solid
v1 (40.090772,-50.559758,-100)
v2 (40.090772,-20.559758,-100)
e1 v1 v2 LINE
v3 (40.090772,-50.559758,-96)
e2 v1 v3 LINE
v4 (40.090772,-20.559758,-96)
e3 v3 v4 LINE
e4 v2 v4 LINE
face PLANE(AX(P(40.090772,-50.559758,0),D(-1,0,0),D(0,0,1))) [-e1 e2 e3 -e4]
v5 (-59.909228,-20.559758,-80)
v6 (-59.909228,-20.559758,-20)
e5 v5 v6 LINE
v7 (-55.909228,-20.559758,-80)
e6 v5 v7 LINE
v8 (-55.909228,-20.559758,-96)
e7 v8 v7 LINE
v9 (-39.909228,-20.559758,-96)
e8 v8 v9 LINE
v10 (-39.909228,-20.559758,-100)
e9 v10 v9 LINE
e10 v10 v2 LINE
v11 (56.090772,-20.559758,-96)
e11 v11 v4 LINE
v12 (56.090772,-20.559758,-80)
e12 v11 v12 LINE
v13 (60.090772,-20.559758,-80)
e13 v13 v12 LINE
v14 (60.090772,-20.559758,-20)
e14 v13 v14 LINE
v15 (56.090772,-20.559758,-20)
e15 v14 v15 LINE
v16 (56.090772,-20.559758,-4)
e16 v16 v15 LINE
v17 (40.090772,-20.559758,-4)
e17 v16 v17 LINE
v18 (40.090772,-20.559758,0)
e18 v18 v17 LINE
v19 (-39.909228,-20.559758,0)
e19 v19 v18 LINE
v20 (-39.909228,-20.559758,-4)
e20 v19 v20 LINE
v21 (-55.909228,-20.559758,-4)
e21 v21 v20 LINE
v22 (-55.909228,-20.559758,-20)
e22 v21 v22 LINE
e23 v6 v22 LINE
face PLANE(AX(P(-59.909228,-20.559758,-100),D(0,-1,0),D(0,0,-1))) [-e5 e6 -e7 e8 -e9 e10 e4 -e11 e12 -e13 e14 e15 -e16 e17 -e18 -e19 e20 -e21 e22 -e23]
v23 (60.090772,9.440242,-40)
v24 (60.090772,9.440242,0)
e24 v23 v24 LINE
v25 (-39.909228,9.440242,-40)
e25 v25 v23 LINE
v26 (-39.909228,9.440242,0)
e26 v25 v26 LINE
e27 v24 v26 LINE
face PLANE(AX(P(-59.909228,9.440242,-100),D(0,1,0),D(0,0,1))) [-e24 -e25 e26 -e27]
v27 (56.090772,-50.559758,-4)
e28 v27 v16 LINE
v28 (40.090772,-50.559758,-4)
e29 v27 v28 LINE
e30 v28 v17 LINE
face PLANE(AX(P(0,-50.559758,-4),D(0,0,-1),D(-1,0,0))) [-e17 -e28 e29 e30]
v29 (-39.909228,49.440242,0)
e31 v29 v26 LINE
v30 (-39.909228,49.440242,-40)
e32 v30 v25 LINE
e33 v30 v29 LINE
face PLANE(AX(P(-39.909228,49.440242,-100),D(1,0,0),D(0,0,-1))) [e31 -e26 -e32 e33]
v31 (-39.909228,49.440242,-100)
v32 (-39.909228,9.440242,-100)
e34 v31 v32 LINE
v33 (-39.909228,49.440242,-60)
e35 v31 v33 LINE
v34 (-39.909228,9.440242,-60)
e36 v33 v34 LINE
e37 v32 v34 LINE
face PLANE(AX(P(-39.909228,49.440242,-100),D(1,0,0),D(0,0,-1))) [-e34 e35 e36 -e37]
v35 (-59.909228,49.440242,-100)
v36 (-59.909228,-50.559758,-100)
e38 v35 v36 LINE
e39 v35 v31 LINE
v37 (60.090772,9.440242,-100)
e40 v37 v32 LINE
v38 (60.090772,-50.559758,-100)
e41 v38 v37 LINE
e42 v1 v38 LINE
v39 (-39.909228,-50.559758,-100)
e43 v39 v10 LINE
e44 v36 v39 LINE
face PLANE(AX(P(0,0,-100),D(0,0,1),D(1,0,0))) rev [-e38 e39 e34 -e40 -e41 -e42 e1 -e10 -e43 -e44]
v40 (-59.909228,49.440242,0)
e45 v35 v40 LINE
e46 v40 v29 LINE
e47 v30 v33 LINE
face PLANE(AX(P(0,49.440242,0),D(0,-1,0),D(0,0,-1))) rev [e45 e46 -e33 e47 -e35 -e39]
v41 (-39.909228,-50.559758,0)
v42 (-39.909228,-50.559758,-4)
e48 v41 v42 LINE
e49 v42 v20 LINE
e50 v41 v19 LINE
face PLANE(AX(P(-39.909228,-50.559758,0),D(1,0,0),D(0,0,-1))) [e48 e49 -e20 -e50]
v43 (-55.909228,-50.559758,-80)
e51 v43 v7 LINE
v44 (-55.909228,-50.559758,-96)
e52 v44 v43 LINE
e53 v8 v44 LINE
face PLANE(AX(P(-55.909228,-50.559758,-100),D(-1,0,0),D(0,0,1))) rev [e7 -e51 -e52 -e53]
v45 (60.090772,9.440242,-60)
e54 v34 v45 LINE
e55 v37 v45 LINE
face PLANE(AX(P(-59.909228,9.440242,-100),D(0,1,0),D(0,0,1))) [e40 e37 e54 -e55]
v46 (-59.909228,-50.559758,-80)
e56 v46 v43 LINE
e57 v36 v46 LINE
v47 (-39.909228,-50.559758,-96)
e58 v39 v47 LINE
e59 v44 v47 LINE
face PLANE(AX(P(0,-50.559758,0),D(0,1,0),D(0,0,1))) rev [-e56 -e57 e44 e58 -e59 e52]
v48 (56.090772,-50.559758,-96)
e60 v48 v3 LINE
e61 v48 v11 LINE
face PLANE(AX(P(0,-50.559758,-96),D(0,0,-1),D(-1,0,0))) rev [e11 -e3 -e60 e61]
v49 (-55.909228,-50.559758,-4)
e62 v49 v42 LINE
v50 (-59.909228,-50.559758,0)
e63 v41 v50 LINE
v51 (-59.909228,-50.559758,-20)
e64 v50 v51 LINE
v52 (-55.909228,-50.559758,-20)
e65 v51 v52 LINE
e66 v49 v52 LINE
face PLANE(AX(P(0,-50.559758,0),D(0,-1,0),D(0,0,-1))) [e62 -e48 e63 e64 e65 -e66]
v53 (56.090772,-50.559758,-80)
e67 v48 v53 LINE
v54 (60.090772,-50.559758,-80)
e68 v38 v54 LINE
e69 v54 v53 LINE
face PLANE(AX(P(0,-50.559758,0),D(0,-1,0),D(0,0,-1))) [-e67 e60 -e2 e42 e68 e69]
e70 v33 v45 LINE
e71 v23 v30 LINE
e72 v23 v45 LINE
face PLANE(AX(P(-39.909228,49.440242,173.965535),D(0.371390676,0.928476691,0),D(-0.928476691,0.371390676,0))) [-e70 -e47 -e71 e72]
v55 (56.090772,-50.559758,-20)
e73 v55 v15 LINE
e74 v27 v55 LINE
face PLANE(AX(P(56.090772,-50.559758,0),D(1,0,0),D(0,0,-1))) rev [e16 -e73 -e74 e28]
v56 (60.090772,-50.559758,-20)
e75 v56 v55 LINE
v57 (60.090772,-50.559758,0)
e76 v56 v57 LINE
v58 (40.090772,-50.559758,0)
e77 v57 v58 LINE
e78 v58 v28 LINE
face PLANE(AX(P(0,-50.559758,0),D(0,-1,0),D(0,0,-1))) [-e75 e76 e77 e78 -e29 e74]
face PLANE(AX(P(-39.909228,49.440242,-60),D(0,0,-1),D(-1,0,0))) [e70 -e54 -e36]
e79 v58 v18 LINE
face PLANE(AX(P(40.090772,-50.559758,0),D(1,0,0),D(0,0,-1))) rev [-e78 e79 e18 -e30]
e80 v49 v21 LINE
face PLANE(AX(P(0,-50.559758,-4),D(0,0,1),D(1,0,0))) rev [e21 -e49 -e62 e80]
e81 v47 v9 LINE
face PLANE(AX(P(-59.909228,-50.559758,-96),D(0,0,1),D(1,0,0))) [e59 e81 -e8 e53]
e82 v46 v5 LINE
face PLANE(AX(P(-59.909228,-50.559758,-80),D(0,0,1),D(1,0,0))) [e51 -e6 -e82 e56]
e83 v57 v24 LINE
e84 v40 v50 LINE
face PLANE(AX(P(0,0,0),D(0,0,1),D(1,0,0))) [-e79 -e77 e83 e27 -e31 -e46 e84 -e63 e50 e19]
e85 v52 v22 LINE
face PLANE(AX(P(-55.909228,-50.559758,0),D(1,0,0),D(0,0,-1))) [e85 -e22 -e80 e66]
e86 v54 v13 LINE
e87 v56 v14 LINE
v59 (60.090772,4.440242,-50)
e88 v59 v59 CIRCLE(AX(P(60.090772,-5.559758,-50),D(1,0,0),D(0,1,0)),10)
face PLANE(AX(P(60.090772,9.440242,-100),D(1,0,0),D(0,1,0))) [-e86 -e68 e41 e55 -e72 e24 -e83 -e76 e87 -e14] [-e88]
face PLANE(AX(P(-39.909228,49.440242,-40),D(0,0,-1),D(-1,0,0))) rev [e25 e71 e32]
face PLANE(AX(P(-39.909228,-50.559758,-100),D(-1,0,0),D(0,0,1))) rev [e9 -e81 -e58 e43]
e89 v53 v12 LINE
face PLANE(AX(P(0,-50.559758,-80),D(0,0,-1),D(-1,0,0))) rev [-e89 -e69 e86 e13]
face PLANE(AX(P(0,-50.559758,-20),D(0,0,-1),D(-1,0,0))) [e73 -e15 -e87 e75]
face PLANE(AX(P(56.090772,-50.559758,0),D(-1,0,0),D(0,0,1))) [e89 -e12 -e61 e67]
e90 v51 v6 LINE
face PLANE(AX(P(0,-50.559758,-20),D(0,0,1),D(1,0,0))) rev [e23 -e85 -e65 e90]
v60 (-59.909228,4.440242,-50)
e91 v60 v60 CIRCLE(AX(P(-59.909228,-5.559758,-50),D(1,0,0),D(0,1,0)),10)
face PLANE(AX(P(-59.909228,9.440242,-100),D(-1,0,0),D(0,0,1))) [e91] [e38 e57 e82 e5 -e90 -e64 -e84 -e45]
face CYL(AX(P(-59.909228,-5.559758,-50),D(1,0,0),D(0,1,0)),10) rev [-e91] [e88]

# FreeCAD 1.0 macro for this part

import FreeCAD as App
import Part
import Sketcher

V = App.Vector
Q = App.Units.Quantity

doc = App.newDocument("Part")
body = doc.addObject("PartDesign::Body", "Body")

# Sketch on XY plane
sketch1 = doc.addObject("Sketcher::SketchObject", "Sketch")
body.addObject(sketch1)
sketch1.AttachmentSupport = (doc.XY_Plane, [""])
sketch1.MapMode = "FlatFace"
sketch1.addGeometry([
    Part.LineSegment(V(-60, 9, 0), V(-60, -21, 0)),
    Part.LineSegment(V(-60, -21, 0), V(60, -21, 0)),
    Part.LineSegment(V(60, -21, 0), V(60, 9, 0)),
    Part.LineSegment(V(60, 9, 0), V(-60, 9, 0)),
], False)
sketch1.addConstraint([
    Sketcher.Constraint("Coincident", 0, 2, 1, 1),
    Sketcher.Constraint("Coincident", 1, 2, 2, 1),
    Sketcher.Constraint("Coincident", 2, 2, 3, 1),
    Sketcher.Constraint("Coincident", 3, 2, 0, 1),
    Sketcher.Constraint("Vertical", 0),
    Sketcher.Constraint("Horizontal", 1),
    Sketcher.Constraint("Vertical", 2),
    Sketcher.Constraint("Horizontal", 3),
    Sketcher.Constraint("DistanceX", 1, 1, 1, 2, Q("120 mm")),
    Sketcher.Constraint("DistanceY", 0, 2, 0, 1, Q("30 mm")),
    Sketcher.Constraint("DistanceX", 0, 2, -1, 1, Q("59.909228 mm")),
    Sketcher.Constraint("DistanceY", 0, 2, -1, 1, Q("20.559758 mm")),
])
pad1 = doc.addObject("PartDesign::Pad", "Pad")
body.addObject(pad1)
pad1.Profile = sketch1
pad1.Length = 100
pad1.Reversed = True

# Sketch on XZ plane
sketch2 = doc.addObject("Sketcher::SketchObject", "Sketch001")
body.addObject(sketch2)
sketch2.AttachmentSupport = (doc.XZ_Plane, [""])
sketch2.MapMode = "FlatFace"
sketch2.AttachmentOffset = App.Placement(V(0, 0, -9.440242), App.Rotation())
sketch2.addGeometry([
    Part.LineSegment(V(-60, -100, 0), V(-60, 0, 0)),
    Part.LineSegment(V(-60, 0, 0), V(-40, 0, 0)),
    Part.LineSegment(V(-40, 0, 0), V(-40, -100, 0)),
    Part.LineSegment(V(-40, -100, 0), V(-60, -100, 0)),
], False)
sketch2.addConstraint([
    Sketcher.Constraint("Coincident", 0, 2, 1, 1),
    Sketcher.Constraint("Coincident", 1, 2, 2, 1),
    Sketcher.Constraint("Coincident", 2, 2, 3, 1),
    Sketcher.Constraint("Coincident", 3, 2, 0, 1),
    Sketcher.Constraint("Vertical", 0),
    Sketcher.Constraint("Horizontal", 1),
    Sketcher.Constraint("Vertical", 2),
    Sketcher.Constraint("Horizontal", 3),
    Sketcher.Constraint("PointOnObject", 0, 2, -1),
    Sketcher.Constraint("DistanceX", 1, 1, 1, 2, Q("20 mm")),
    Sketcher.Constraint("DistanceY", 0, 1, 0, 2, Q("100 mm")),
    Sketcher.Constraint("DistanceX", 0, 2, -1, 1, Q("59.909228 mm")),
])
pad2 = doc.addObject("PartDesign::Pad", "Pad001")
body.addObject(pad2)
pad2.Profile = sketch2
pad2.Length = 40
pad2.Reversed = True

# Sketch on XZ plane
sketch3 = doc.addObject("Sketcher::SketchObject", "Sketch002")
body.addObject(sketch3)
sketch3.AttachmentSupport = (doc.XZ_Plane, [""])
sketch3.MapMode = "FlatFace"
sketch3.AttachmentOffset = App.Placement(V(0, 0, -9.440242), App.Rotation())
sketch3.addGeometry([
    Part.LineSegment(V(-40, -60, 0), V(-40, -40, 0)),
    Part.LineSegment(V(-40, -40, 0), V(60, -40, 0)),
    Part.LineSegment(V(60, -40, 0), V(60, -60, 0)),
    Part.LineSegment(V(60, -60, 0), V(-40, -60, 0)),
], False)
sketch3.addConstraint([
    Sketcher.Constraint("Coincident", 0, 2, 1, 1),
    Sketcher.Constraint("Coincident", 1, 2, 2, 1),
    Sketcher.Constraint("Coincident", 2, 2, 3, 1),
    Sketcher.Constraint("Coincident", 3, 2, 0, 1),
    Sketcher.Constraint("Vertical", 0),
    Sketcher.Constraint("Horizontal", 1),
    Sketcher.Constraint("Vertical", 2),
    Sketcher.Constraint("Horizontal", 3),
    Sketcher.Constraint("DistanceX", 1, 1, 1, 2, Q("100 mm")),
    Sketcher.Constraint("DistanceY", 0, 1, 0, 2, Q("20 mm")),
    Sketcher.Constraint("DistanceY", 0, 2, -1, 1, Q("40 mm")),
    Sketcher.Constraint("DistanceX", 0, 2, -1, 1, Q("39.909228 mm")),
])
pad3 = doc.addObject("PartDesign::Pad", "Pad002")
body.addObject(pad3)
pad3.Profile = sketch3
pad3.Length = 40
pad3.Reversed = True

# Sketch on XY plane
sketch4 = doc.addObject("Sketcher::SketchObject", "Sketch003")
body.addObject(sketch4)
sketch4.AttachmentSupport = (doc.XY_Plane, [""])
sketch4.MapMode = "FlatFace"
sketch4.AttachmentOffset = App.Placement(V(0, 0, -40), App.Rotation())
sketch4.addGeometry([
    Part.LineSegment(V(-284, 147, 0), V(-40, 49, 0)),  # 0
    Part.LineSegment(V(-40, 49, 0), V(60, 9, 0)),  # 1
    Part.LineSegment(V(60, 9, 0), V(304, -88, 0)),  # 2
    Part.LineSegment(V(304, -88, 0), V(500, 400, 0)),  # 3
    Part.LineSegment(V(500, 400, 0), V(-89, 635, 0)),  # 4
    Part.LineSegment(V(-89, 635, 0), V(-284, 147, 0)),  # 5
], False)
sketch4.addConstraint([
    Sketcher.Constraint("Coincident", 0, 2, 1, 1),
    Sketcher.Constraint("Coincident", 1, 2, 2, 1),
    Sketcher.Constraint("Coincident", 2, 2, 3, 1),
    Sketcher.Constraint("Coincident", 3, 2, 4, 1),
    Sketcher.Constraint("Coincident", 4, 2, 5, 1),
    Sketcher.Constraint("Coincident", 5, 2, 0, 1),
    Sketcher.Constraint("Parallel", 0, 1),
    Sketcher.Constraint("Parallel", 1, 2),
    Sketcher.Constraint("Perpendicular", 2, 3),
    Sketcher.Constraint("Perpendicular", 3, 4),
    Sketcher.Constraint("Perpendicular", 4, 5),
    Sketcher.Constraint("Equal", 0, 2),
    Sketcher.Constraint("DistanceX", 0, 2, 1, 2, Q("100 mm")),
    Sketcher.Constraint("DistanceY", 1, 2, 0, 2, Q("40 mm")),
    Sketcher.Constraint("DistanceY", 2, 2, -1, 1, Q("88.2289 mm")),
    Sketcher.Constraint("DistanceX", 4, 2, -1, 1, Q("88.743799 mm")),
    Sketcher.Constraint("Distance", 4, Q("633.667722 mm")),
    Sketcher.Constraint("DistanceX", 0, 2, -1, 1, Q("39.909228 mm")),
])
pocket1 = doc.addObject("PartDesign::Pocket", "Pocket")
body.addObject(pocket1)
pocket1.Profile = sketch4
pocket1.Type = "ThroughAll"
pocket1.Midplane = True

# Sketch on YZ plane
sketch5 = doc.addObject("Sketcher::SketchObject", "Sketch004")
body.addObject(sketch5)
sketch5.AttachmentSupport = (doc.YZ_Plane, [""])
sketch5.MapMode = "FlatFace"
sketch5.AttachmentOffset = App.Placement(V(0, 0, 60.090772), App.Rotation())
sketch5.addGeometry(Part.Circle(V(-6, -50, 0), V(0, 0, 1), 10), False)
sketch5.addConstraint([
    Sketcher.Constraint("Diameter", 0, Q("20 mm")),
    Sketcher.Constraint("DistanceY", 0, 3, -1, 1, Q("50 mm")),
    Sketcher.Constraint("DistanceX", 0, 3, -1, 1, Q("5.559758 mm")),
])
pocket2 = doc.addObject("PartDesign::Pocket", "Pocket001")
body.addObject(pocket2)
pocket2.Profile = sketch5
pocket2.Length = 120

# Sketch on XZ plane
sketch6 = doc.addObject("Sketcher::SketchObject", "Sketch005")
body.addObject(sketch6)
sketch6.AttachmentSupport = (doc.XZ_Plane, [""])
sketch6.MapMode = "FlatFace"
sketch6.AttachmentOffset = App.Placement(V(0, 0, 20.559758), App.Rotation())
sketch6.addGeometry([
    Part.LineSegment(V(-59.9, -20, 0), V(-55.9, -20, 0)),  # 0
    Part.LineSegment(V(-55.9, -20, 0), V(-55.9, -4, 0)),  # 1
    Part.LineSegment(V(-55.9, -4, 0), V(-39.9, -4, 0)),  # 2
    Part.LineSegment(V(-39.9, -4, 0), V(-39.9, 0, 0)),  # 3
    Part.LineSegment(V(-39.9, 0, 0), V(-59.9, 0, 0)),  # 4
    Part.LineSegment(V(-59.9, 0, 0), V(-59.9, -20, 0)),  # 5
    Part.LineSegment(V(40.1, 0, 0), V(40.1, -4, 0)),  # 6
    Part.LineSegment(V(40.1, -4, 0), V(56.1, -4, 0)),  # 7
    Part.LineSegment(V(56.1, -4, 0), V(56.1, -20, 0)),  # 8
    Part.LineSegment(V(56.1, -20, 0), V(60.1, -20, 0)),  # 9
    Part.LineSegment(V(60.1, -20, 0), V(60.1, 0, 0)),  # 10
    Part.LineSegment(V(60.1, 0, 0), V(40.1, 0, 0)),  # 11
    Part.LineSegment(V(56.1, -80, 0), V(56.1, -96, 0)),  # 12
    Part.LineSegment(V(56.1, -96, 0), V(40.1, -96, 0)),  # 13
    Part.LineSegment(V(40.1, -96, 0), V(40.1, -100, 0)),  # 14
    Part.LineSegment(V(40.1, -100, 0), V(60.1, -100, 0)),  # 15
    Part.LineSegment(V(60.1, -100, 0), V(60.1, -80, 0)),  # 16
    Part.LineSegment(V(60.1, -80, 0), V(56.1, -80, 0)),  # 17
    Part.LineSegment(V(-59.9, -100, 0), V(-39.9, -100, 0)),  # 18
    Part.LineSegment(V(-39.9, -100, 0), V(-39.9, -96, 0)),  # 19
    Part.LineSegment(V(-39.9, -96, 0), V(-55.9, -96, 0)),  # 20
    Part.LineSegment(V(-55.9, -96, 0), V(-55.9, -80, 0)),  # 21
    Part.LineSegment(V(-55.9, -80, 0), V(-59.9, -80, 0)),  # 22
    Part.LineSegment(V(-59.9, -80, 0), V(-59.9, -100, 0)),  # 23
], False)
sketch6.addConstraint([
    Sketcher.Constraint("Coincident", 0, 2, 1, 1),
    Sketcher.Constraint("Coincident", 1, 2, 2, 1),
    Sketcher.Constraint("Coincident", 2, 2, 3, 1),
    Sketcher.Constraint("Coincident", 3, 2, 4, 1),
    Sketcher.Constraint("Coincident", 4, 2, 5, 1),
    Sketcher.Constraint("Coincident", 5, 2, 0, 1),
    Sketcher.Constraint("Coincident", 6, 2, 7, 1),
    Sketcher.Constraint("Coincident", 7, 2, 8, 1),
    Sketcher.Constraint("Coincident", 8, 2, 9, 1),
    Sketcher.Constraint("Coincident", 9, 2, 10, 1),
    Sketcher.Constraint("Coincident", 10, 2, 11, 1),
    Sketcher.Constraint("Coincident", 11, 2, 6, 1),
    Sketcher.Constraint("Coincident", 12, 2, 13, 1),
    Sketcher.Constraint("Coincident", 13, 2, 14, 1),
    Sketcher.Constraint("Coincident", 14, 2, 15, 1),
    Sketcher.Constraint("Coincident", 15, 2, 16, 1),
    Sketcher.Constraint("Coincident", 16, 2, 17, 1),
    Sketcher.Constraint("Coincident", 17, 2, 12, 1),
    Sketcher.Constraint("Coincident", 18, 2, 19, 1),
    Sketcher.Constraint("Coincident", 19, 2, 20, 1),
    Sketcher.Constraint("Coincident", 20, 2, 21, 1),
    Sketcher.Constraint("Coincident", 21, 2, 22, 1),
    Sketcher.Constraint("Coincident", 22, 2, 23, 1),
    Sketcher.Constraint("Coincident", 23, 2, 18, 1),
    Sketcher.Constraint("Horizontal", 0),
    Sketcher.Constraint("Vertical", 1),
    Sketcher.Constraint("Horizontal", 2),
    Sketcher.Constraint("Vertical", 3),
    Sketcher.Constraint("Horizontal", 4),
    Sketcher.Constraint("Vertical", 5),
    Sketcher.Constraint("Vertical", 6),
    Sketcher.Constraint("Horizontal", 7),
    Sketcher.Constraint("Vertical", 8),
    Sketcher.Constraint("Horizontal", 9),
    Sketcher.Constraint("Vertical", 10),
    Sketcher.Constraint("Horizontal", 11),
    Sketcher.Constraint("Vertical", 12),
    Sketcher.Constraint("Horizontal", 13),
    Sketcher.Constraint("Vertical", 14),
    Sketcher.Constraint("Horizontal", 15),
    Sketcher.Constraint("Vertical", 16),
    Sketcher.Constraint("Horizontal", 17),
    Sketcher.Constraint("Horizontal", 18),
    Sketcher.Constraint("Vertical", 19),
    Sketcher.Constraint("Horizontal", 20),
    Sketcher.Constraint("Vertical", 21),
    Sketcher.Constraint("Horizontal", 22),
    Sketcher.Constraint("Vertical", 23),
    Sketcher.Constraint("PointOnObject", 3, 2, -1),
    Sketcher.Constraint("PointOnObject", 10, 2, -1),
    Sketcher.Constraint("Horizontal", 2, 2, 6, 2),
    Sketcher.Constraint("Horizontal", 5, 2, 8, 2),
    Sketcher.Constraint("Horizontal", 15, 2, 18, 2),
    Sketcher.Constraint("Horizontal", 13, 2, 19, 2),
    Sketcher.Constraint("Horizontal", 17, 2, 21, 2),
    Sketcher.Constraint("Vertical", 8, 2, 12, 2),
    Sketcher.Constraint("Vertical", 11, 2, 13, 2),
    Sketcher.Constraint("Vertical", 10, 2, 15, 2),
    Sketcher.Constraint("Vertical", 3, 2, 18, 2),
    Sketcher.Constraint("Vertical", 1, 2, 20, 2),
    Sketcher.Constraint("Vertical", 5, 2, 22, 2),
    Sketcher.Constraint("Equal", 2, 7),
    Sketcher.Constraint("Equal", 0, 9),
    Sketcher.Constraint("Equal", 20, 1),
    Sketcher.Constraint("Equal", 22, 3),
    Sketcher.Constraint("Equal", 8, 12),
    Sketcher.Constraint("Equal", 6, 14),
    Sketcher.Constraint("DistanceX", 0, 1, 0, 2, Q("4 mm")),
    Sketcher.Constraint("DistanceX", 2, 1, 2, 2, Q("16 mm")),
    Sketcher.Constraint("DistanceY", 12, 2, -1, 1, Q("96 mm")),
    Sketcher.Constraint("DistanceX", 2, 2, 6, 2, Q("80 mm")),
    Sketcher.Constraint("DistanceX", 0, 2, -1, 1, Q("55.909228 mm")),
])
pad4 = doc.addObject("PartDesign::Pad", "Pad003")
body.addObject(pad4)
pad4.Profile = sketch6
pad4.Length = 30

doc.recompute()
